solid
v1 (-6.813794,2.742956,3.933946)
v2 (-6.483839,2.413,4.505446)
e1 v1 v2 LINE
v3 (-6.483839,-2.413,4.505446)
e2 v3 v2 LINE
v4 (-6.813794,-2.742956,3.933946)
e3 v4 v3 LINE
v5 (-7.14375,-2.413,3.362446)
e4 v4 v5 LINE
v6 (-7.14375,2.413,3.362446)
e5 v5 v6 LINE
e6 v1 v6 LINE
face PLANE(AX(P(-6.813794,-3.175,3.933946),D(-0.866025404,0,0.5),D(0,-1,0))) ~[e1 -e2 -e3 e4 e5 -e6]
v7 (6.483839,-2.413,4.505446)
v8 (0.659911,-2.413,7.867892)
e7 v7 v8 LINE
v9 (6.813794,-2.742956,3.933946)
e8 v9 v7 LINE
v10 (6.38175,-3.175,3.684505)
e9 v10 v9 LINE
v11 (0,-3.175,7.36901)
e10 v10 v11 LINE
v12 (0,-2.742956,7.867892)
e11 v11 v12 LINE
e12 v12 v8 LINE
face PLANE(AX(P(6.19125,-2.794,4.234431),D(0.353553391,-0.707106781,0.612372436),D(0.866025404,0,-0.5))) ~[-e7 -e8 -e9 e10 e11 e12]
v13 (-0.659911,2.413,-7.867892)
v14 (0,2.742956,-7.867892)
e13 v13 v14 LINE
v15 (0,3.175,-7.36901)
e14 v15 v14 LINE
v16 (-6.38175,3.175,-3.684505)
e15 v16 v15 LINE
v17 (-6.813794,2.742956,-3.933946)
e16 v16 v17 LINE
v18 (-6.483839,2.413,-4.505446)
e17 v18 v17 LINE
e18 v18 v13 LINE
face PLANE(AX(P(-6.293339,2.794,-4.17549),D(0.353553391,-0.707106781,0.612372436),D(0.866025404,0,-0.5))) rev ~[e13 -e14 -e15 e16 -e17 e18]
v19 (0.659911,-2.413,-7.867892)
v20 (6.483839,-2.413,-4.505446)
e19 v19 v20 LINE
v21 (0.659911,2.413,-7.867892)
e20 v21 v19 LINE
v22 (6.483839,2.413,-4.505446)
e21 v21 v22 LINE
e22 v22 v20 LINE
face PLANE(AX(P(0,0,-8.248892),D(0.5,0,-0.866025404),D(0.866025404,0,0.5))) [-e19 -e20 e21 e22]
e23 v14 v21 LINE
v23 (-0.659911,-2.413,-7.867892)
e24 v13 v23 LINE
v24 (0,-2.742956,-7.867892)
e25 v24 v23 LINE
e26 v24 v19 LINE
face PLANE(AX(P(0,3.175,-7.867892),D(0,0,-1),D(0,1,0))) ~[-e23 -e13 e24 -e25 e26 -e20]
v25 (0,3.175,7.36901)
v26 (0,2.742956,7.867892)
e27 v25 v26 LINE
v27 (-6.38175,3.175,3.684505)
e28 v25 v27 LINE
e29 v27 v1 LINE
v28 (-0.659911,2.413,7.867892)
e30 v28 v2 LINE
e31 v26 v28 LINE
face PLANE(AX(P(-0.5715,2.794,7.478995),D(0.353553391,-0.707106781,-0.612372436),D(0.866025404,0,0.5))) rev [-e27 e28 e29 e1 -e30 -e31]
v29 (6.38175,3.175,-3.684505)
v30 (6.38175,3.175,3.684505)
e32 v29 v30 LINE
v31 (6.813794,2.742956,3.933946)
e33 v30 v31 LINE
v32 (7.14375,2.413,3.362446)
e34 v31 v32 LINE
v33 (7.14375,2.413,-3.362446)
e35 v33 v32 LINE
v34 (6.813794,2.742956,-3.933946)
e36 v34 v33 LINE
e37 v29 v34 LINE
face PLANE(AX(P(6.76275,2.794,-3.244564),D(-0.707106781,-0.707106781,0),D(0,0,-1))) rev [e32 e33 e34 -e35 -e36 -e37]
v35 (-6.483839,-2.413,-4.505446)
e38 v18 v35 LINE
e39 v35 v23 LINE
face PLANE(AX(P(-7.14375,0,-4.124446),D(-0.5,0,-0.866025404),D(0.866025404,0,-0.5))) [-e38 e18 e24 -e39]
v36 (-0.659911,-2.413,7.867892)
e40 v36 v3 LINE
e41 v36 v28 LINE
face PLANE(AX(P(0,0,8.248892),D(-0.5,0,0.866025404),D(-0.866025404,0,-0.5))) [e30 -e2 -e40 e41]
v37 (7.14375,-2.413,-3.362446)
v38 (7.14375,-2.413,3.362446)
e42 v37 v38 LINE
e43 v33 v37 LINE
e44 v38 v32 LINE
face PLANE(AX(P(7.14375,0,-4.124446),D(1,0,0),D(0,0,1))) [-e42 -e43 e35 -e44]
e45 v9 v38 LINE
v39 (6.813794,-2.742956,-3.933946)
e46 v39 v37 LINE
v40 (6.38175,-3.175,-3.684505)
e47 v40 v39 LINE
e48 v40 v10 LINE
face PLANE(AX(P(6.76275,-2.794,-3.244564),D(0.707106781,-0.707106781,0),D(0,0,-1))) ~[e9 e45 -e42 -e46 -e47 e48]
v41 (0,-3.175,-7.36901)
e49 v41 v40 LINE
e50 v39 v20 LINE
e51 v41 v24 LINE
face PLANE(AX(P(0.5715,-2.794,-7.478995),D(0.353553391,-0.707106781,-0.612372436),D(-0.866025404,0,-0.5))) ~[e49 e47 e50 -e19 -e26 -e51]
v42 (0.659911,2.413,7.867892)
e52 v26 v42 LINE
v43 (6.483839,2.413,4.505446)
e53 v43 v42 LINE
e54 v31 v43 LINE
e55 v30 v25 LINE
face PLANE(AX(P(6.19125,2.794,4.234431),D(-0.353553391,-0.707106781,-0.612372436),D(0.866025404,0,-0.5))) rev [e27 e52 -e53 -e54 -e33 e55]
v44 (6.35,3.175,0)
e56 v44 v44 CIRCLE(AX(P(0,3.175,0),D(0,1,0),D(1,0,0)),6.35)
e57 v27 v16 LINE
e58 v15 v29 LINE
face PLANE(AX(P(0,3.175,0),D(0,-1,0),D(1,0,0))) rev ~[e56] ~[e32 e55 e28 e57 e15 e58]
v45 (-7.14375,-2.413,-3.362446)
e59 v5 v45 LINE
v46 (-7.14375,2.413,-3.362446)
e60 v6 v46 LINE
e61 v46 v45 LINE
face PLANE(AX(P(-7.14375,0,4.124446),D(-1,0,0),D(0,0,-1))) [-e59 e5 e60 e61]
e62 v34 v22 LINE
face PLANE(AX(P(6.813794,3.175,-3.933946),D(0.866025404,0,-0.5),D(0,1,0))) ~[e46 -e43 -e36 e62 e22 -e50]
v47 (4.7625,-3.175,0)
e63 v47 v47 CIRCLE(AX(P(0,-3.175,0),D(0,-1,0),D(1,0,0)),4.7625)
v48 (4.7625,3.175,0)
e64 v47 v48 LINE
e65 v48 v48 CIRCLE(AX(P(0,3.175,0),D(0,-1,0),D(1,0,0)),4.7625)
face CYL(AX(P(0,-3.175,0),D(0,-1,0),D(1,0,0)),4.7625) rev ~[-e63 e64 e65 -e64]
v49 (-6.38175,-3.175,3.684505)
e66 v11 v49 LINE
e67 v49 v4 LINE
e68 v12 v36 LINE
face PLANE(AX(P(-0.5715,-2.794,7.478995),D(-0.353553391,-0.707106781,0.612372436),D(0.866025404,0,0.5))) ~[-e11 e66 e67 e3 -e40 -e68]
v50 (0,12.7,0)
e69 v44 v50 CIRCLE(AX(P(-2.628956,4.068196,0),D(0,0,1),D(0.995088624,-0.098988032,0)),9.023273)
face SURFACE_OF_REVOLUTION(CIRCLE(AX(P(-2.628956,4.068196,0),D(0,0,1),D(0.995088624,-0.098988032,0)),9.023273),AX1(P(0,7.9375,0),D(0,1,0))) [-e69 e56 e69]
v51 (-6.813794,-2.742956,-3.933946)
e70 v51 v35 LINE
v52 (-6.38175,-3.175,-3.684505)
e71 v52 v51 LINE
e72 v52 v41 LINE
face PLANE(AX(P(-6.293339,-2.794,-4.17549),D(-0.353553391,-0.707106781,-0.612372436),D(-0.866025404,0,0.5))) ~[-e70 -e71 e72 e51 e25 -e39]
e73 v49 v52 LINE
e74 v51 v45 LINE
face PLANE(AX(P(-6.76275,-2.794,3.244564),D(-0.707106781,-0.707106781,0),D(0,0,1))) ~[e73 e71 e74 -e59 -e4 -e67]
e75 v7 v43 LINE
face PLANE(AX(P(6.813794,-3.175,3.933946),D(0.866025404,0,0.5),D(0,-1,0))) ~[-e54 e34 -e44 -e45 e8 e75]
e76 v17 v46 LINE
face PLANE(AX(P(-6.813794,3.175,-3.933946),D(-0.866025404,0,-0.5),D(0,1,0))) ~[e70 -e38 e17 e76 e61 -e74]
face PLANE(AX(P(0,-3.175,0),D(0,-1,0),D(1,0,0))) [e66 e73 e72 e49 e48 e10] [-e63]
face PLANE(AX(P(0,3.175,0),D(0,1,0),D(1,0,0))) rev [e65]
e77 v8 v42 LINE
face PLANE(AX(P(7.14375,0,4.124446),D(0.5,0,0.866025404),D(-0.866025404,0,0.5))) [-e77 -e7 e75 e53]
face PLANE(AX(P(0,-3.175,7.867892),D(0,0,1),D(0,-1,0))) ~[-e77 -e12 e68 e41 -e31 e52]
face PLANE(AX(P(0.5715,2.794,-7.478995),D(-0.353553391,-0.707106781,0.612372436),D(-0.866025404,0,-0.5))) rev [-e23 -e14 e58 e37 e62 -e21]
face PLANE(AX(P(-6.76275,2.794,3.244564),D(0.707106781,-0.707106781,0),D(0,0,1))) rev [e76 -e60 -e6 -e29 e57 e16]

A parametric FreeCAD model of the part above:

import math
import FreeCAD as App
import Part
import Sketcher

V = App.Vector
Q = App.Units.Quantity


def edges_at(feature, points):
    """Names of the edges that pass closest to the given points."""
    edges = feature.Shape.Edges
    near = lambda p: min(range(len(edges)), key=lambda i: edges[i].distToShape(Part.Vertex(*p))[0])
    return sorted({f"Edge{near(p) + 1}" for p in points})


def add_polygon(sketch, points):
    """Adds a closed chain of lines whose ends are joined by coincident constraints."""
    first, n = sketch.GeometryCount, len(points)
    for a, b in zip(points, points[1:] + points[:1]):
        sketch.addGeometry(Part.LineSegment(App.Vector(*a, 0), App.Vector(*b, 0)), False)
    for i in range(n):
        sketch.addConstraint(Sketcher.Constraint("Coincident", first + i, 2, first + (i + 1) % n, 1))

doc = App.newDocument("Part")
body = doc.addObject("PartDesign::Body", "Body")

# Sketch on XZ plane
sketch1 = body.newObject("Sketcher::SketchObject", "Sketch")
sketch1.AttachmentSupport = (doc.getObject("XZ_Plane"), [""])
sketch1.MapMode = "FlatFace"
add_polygon(sketch1, [(-7, 4), (-7, -4), (0, -8), (7, -4), (7, 4), (0, 8)])  # lines 0-5
sketch1.addConstraint([
    Sketcher.Constraint("Vertical", 0),
    Sketcher.Constraint("Vertical", 3),
    Sketcher.Constraint("Symmetric", 0, 2, 3, 2, -1, 1),
    Sketcher.Constraint("Symmetric", 1, 2, 4, 2, -1, 1),
    Sketcher.Constraint("PointOnObject", 1, 2, -2),
    Sketcher.Constraint("Parallel", 2, 5),
    Sketcher.Constraint("Horizontal", 0, 2, 2, 2),
    Sketcher.Constraint("Angle", 1, Q("-30 deg")),
    Sketcher.Constraint("DistanceX", 0, 2, -1, 1, Q("0.28125 in")),
    Sketcher.Constraint("DistanceY", 0, 2, 0, 1, 8.248892),
])
pad1 = body.newObject("PartDesign::Pad", "Pad")
pad1.Profile = sketch1
pad1.Length = Q("0.25 in")
pad1.Midplane = True

# Sketch on XZ plane
sketch2 = body.newObject("Sketcher::SketchObject", "Sketch001")
sketch2.AttachmentSupport = (doc.getObject("XZ_Plane"), [""])
sketch2.MapMode = "FlatFace"
sketch2.AttachmentOffset = App.Placement(V(0, 0, 0.125 * 25.4), App.Rotation())
sketch2.addGeometry(Part.Circle(V(0, 0, 0), V(0, 0, 1), 4.8), False)
sketch2.addConstraint([
    Sketcher.Constraint("Coincident", 0, 3, -1, 1),
    Sketcher.Constraint("Diameter", 0, Q("0.375 in")),
])
pocket1 = body.newObject("PartDesign::Pocket", "Pocket")
pocket1.Profile = sketch2
pocket1.Length = 25
doc.recompute()

chamfer = body.newObject("PartDesign::Chamfer", "Chamfer")
chamfer.Base = (pocket1, edges_at(pocket1, [
    (0, 0, 8.249),
    (7.144, 0, 4.124),
    (7.144, 0, -4.124),
    (0, 0, -8.249),
    (-7.144, 0, -4.124),
    (-7.144, 0, 4.124),
]))
chamfer.Size = Q("0.03 in")
doc.recompute()

chamfer2 = body.newObject("PartDesign::Chamfer", "Chamfer001")
chamfer2.Base = (chamfer, edges_at(chamfer, [(-3.572, -3.175, -6.187)]))
chamfer2.Size = Q("0.03 in")
doc.recompute()

chamfer3 = body.newObject("PartDesign::Chamfer", "Chamfer002")
chamfer3.Base = (chamfer2, edges_at(chamfer2, [(3.623, -3.175, -6.157)]))
chamfer3.Size = Q("0.03 in")
doc.recompute()

chamfer4 = body.newObject("PartDesign::Chamfer", "Chamfer003")
chamfer4.Base = (chamfer3, edges_at(chamfer3, [(7.144, -3.175, 0.059)]))
chamfer4.Size = Q("0.03 in")
doc.recompute()

chamfer5 = body.newObject("PartDesign::Chamfer", "Chamfer004")
chamfer5.Base = (chamfer4, edges_at(chamfer4, [(3.521, -3.175, 6.216)]))
chamfer5.Size = Q("0.03 in")
doc.recompute()

chamfer6 = body.newObject("PartDesign::Chamfer", "Chamfer005")
chamfer6.Base = (chamfer5, edges_at(chamfer5, [(-3.623, -3.175, 6.157)]))
chamfer6.Size = Q("0.03 in")
doc.recompute()

chamfer7 = body.newObject("PartDesign::Chamfer", "Chamfer006")
chamfer7.Base = (chamfer6, edges_at(chamfer6, [(-7.144, -3.175, 0)]))
chamfer7.Size = Q("0.03 in")
doc.recompute()

chamfer8 = body.newObject("PartDesign::Chamfer", "Chamfer007")
chamfer8.Base = (chamfer7, edges_at(chamfer7, [(-3.572, 3.175, -6.187)]))
chamfer8.Size = Q("0.03 in")
doc.recompute()

chamfer9 = body.newObject("PartDesign::Chamfer", "Chamfer008")
chamfer9.Base = (chamfer8, edges_at(chamfer8, [(3.623, 3.175, -6.157)]))
chamfer9.Size = Q("0.03 in")
doc.recompute()

chamfer10 = body.newObject("PartDesign::Chamfer", "Chamfer009")
chamfer10.Base = (chamfer9, edges_at(chamfer9, [(7.144, 3.175, 0.059)]))
chamfer10.Size = Q("0.03 in")
doc.recompute()

chamfer11 = body.newObject("PartDesign::Chamfer", "Chamfer010")
chamfer11.Base = (chamfer10, edges_at(chamfer10, [(3.521, 3.175, 6.216)]))
chamfer11.Size = Q("0.03 in")
doc.recompute()

chamfer12 = body.newObject("PartDesign::Chamfer", "Chamfer011")
chamfer12.Base = (chamfer11, edges_at(chamfer11, [(-3.623, 3.175, 6.157)]))
chamfer12.Size = Q("0.03 in")
doc.recompute()

chamfer13 = body.newObject("PartDesign::Chamfer", "Chamfer012")
chamfer13.Base = (chamfer12, edges_at(chamfer12, [(-7.144, 3.175, 0)]))
chamfer13.Size = Q("0.03 in")

# Sketch on XY plane
sketch3 = body.newObject("Sketcher::SketchObject", "Sketch002")
sketch3.AttachmentSupport = (doc.getObject("XY_Plane"), [""])
sketch3.MapMode = "FlatFace"
sketch3.addGeometry([
    Part.LineSegment(V(0, 13, 0), V(0, 3, 0)),
    Part.LineSegment(V(0, 3, 0), V(6, 3, 0)),
    Part.ArcOfCircle(Part.Circle(V(-3, 4, 0), V(0, 0, 1), 9), math.radians(-6), math.radians(73)),
], False)
sketch3.addConstraint([
    Sketcher.Constraint("Coincident", 0, 2, 1, 1),
    Sketcher.Constraint("Coincident", 1, 2, 2, 1),
    Sketcher.Constraint("Coincident", 2, 2, 0, 1),
    Sketcher.Constraint("Vertical", 0),
    Sketcher.Constraint("Horizontal", 1),
    Sketcher.Constraint("PointOnObject", 0, 2, -2),
    Sketcher.Constraint("DistanceX", 1, 1, 1, 2, Q("0.25 in")),
    Sketcher.Constraint("DistanceY", -1, 1, 2, 2, Q("0.5 in")),
    Sketcher.Constraint("DistanceY", 0, 2, 0, 1, Q("0.375 in")),
    Sketcher.Constraint("Radius", 2, 9.023273),
])
revolution = body.newObject("PartDesign::Revolution", "Revolution")
revolution.Profile = sketch3
revolution.ReferenceAxis = (sketch3, ["V_Axis"])
revolution.Angle = 360

doc.recompute()
